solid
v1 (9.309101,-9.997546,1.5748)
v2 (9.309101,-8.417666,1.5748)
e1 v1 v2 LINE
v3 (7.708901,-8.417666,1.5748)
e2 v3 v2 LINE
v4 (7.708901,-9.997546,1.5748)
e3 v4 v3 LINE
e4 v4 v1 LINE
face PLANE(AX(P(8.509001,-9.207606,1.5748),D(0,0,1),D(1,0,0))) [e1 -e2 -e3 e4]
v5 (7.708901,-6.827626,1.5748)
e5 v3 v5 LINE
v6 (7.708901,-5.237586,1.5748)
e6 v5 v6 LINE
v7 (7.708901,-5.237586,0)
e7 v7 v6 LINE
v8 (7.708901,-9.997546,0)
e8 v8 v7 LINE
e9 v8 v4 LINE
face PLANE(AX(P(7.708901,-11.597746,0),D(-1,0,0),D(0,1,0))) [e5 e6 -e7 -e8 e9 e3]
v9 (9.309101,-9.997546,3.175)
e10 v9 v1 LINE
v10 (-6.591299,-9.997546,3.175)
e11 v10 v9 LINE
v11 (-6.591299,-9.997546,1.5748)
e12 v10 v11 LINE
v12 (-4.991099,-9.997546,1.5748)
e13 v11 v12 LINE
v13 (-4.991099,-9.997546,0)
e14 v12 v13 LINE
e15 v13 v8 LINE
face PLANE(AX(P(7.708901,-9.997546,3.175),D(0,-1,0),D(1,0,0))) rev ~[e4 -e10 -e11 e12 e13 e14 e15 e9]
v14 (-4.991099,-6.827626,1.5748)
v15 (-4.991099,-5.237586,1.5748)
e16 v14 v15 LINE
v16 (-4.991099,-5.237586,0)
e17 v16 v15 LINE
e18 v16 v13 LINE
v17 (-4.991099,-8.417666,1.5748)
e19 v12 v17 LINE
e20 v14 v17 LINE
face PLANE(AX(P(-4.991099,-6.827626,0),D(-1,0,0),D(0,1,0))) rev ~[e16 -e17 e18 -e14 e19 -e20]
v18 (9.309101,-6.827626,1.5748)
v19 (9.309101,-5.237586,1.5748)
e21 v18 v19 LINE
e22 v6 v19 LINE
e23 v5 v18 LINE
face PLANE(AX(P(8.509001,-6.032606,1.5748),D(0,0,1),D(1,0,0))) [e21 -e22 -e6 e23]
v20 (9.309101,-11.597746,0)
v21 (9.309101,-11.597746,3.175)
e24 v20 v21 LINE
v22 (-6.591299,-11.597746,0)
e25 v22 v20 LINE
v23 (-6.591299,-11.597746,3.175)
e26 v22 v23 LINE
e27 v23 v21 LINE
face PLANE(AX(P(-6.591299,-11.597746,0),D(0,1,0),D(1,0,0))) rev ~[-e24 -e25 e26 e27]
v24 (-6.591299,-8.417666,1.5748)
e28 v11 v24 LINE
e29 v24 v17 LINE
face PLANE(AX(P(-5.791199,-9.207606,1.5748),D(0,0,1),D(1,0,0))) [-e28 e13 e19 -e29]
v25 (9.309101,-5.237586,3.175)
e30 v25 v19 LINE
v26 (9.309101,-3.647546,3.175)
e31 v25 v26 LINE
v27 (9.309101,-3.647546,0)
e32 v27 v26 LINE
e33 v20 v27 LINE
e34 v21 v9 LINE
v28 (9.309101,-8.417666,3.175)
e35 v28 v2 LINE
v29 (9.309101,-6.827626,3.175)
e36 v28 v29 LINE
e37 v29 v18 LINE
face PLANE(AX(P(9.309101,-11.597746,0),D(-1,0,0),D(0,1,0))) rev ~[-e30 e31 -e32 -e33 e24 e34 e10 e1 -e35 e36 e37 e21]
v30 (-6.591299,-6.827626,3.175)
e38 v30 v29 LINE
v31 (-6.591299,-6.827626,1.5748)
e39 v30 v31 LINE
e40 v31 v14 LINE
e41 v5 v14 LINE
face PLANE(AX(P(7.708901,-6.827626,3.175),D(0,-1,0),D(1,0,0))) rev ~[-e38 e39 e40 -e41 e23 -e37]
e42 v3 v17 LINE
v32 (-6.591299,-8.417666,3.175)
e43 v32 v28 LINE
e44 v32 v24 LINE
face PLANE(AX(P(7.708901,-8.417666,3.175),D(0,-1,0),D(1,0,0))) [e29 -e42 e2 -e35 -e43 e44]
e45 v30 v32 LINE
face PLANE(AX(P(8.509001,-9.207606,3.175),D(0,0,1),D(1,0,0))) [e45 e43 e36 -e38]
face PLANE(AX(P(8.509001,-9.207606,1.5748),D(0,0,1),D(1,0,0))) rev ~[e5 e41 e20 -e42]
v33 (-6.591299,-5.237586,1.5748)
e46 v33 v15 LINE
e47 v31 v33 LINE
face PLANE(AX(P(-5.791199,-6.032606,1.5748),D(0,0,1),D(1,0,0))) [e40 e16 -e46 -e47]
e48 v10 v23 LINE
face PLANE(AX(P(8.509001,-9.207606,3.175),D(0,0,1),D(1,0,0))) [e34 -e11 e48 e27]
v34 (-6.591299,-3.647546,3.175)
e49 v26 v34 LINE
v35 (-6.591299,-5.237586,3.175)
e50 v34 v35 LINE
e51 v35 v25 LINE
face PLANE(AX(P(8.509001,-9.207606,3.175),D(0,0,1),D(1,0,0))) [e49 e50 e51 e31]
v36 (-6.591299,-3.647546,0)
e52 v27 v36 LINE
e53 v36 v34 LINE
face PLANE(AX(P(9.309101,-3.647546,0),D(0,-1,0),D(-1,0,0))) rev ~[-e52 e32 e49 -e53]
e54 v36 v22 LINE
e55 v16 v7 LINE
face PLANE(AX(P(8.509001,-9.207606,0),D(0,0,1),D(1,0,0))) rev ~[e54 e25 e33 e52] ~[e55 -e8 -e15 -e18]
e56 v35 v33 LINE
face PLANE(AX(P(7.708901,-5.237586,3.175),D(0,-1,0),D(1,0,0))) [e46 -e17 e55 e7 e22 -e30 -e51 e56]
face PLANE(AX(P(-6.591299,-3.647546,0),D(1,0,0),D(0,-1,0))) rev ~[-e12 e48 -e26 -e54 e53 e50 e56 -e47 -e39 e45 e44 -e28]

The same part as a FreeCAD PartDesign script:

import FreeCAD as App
import Part
import Sketcher
from FreeCAD import Vector
Q = App.Units.Quantity


def faces_at(feature, points):
    """Names of the faces that lie closest to the given points."""
    faces = feature.Shape.Faces
    near = lambda p: min(range(len(faces)), key=lambda i: faces[i].distToShape(Part.Vertex(*p))[0])
    return sorted({f"Face{near(p) + 1}" for p in points})

doc = App.newDocument("Part")
params = doc.addObject("Spreadsheet::Sheet", "Params")
for row, (alias, value) in enumerate([
    ("sketch1_width", "0.626 in"),
    ("sketch1_height", "0.313 in"),
    ("pad1_length", "0.125 in"),
    ("thickness_wall", "0.063 in"),
    ("sketch2_width", "0.5 in"),
    ("pocket1_length", "1 in"),
    ("sketch3_width", "0.063 in"),
    ("pocket2_length", "0.063 in"),
], start=1):
    params.set(f"A{row}", alias)
    params.set(f"B{row}", "=" + value)
    params.setAlias(f"B{row}", alias)

body = doc.addObject("PartDesign::Body", "Body")

sketch1 = body.newObject("Sketcher::SketchObject", "Sketch")
sketch1.AttachmentSupport = (doc.getObject("XY_Plane"), [""])
sketch1.MapMode = "FlatFace"
sketch1.addGeometry(Part.LineSegment(Vector(9, -12, 0), Vector(9, -4, 0)), False)
sketch1.addGeometry(Part.LineSegment(Vector(9, -4, 0), Vector(-7, -4, 0)), False)
sketch1.addGeometry(Part.LineSegment(Vector(-7, -4, 0), Vector(-7, -12, 0)), False)
sketch1.addGeometry(Part.LineSegment(Vector(-7, -12, 0), Vector(9, -12, 0)), False)
sketch1.addConstraint(Sketcher.Constraint("Coincident", 0, 2, 1, 1))
sketch1.addConstraint(Sketcher.Constraint("Coincident", 1, 2, 2, 1))
sketch1.addConstraint(Sketcher.Constraint("Coincident", 2, 2, 3, 1))
sketch1.addConstraint(Sketcher.Constraint("Coincident", 3, 2, 0, 1))
sketch1.addConstraint(Sketcher.Constraint("Vertical", 0))
sketch1.addConstraint(Sketcher.Constraint("Horizontal", 1))
sketch1.addConstraint(Sketcher.Constraint("Vertical", 2))
sketch1.addConstraint(Sketcher.Constraint("Horizontal", 3))
sketch1.addConstraint(Sketcher.Constraint("DistanceX", 1, 2, 1, 1, Q("0.626 in")))
sketch1.addConstraint(Sketcher.Constraint("DistanceY", 0, 1, 0, 2, Q("0.313 in")))
sketch1.addConstraint(Sketcher.Constraint("DistanceX", -1, 1, 0, 2, Q("0.3665 in")))
sketch1.addConstraint(Sketcher.Constraint("DistanceY", 0, 2, -1, 1, Q("3.647546 mm")))
sketch1.setExpression("Constraints[8]", "Params.sketch1_width")
sketch1.setExpression("Constraints[9]", "Params.sketch1_height")
pad1 = body.newObject("PartDesign::Pad", "Pad")
pad1.Profile = sketch1
pad1.setExpression("Length", "Params.pad1_length")
doc.recompute()

thickness = body.newObject("PartDesign::Thickness", "Thickness")
thickness.Base = (pad1, faces_at(pad1, [(1.359, -7.623, 0)]))
thickness.setExpression("Value", "Params.thickness_wall")
thickness.Reversed = True
thickness.Join = "Arc"

sketch2 = body.newObject("Sketcher::SketchObject", "Sketch001")
sketch2.AttachmentSupport = (doc.getObject("XY_Plane"), [""])
sketch2.MapMode = "FlatFace"
sketch2.addGeometry(Part.LineSegment(Vector(-5, -5.2, 0), Vector(-5, -6.8, 0)), False)
sketch2.addGeometry(Part.LineSegment(Vector(-5, -6.8, 0), Vector(7.7, -6.8, 0)), False)
sketch2.addGeometry(Part.LineSegment(Vector(7.7, -6.8, 0), Vector(7.7, -5.2, 0)), False)
sketch2.addGeometry(Part.LineSegment(Vector(7.7, -5.2, 0), Vector(-5, -5.2, 0)), False)
sketch2.addGeometry(Part.LineSegment(Vector(-5, -8.4, 0), Vector(-5, -10, 0)), False)
sketch2.addGeometry(Part.LineSegment(Vector(-5, -10, 0), Vector(7.7, -10, 0)), False)
sketch2.addGeometry(Part.LineSegment(Vector(7.7, -10, 0), Vector(7.7, -8.4, 0)), False)
sketch2.addGeometry(Part.LineSegment(Vector(7.7, -8.4, 0), Vector(-5, -8.4, 0)), False)
sketch2.addConstraint(Sketcher.Constraint("Coincident", 0, 2, 1, 1))
sketch2.addConstraint(Sketcher.Constraint("Coincident", 1, 2, 2, 1))
sketch2.addConstraint(Sketcher.Constraint("Coincident", 2, 2, 3, 1))
sketch2.addConstraint(Sketcher.Constraint("Coincident", 3, 2, 0, 1))
sketch2.addConstraint(Sketcher.Constraint("Coincident", 4, 2, 5, 1))
sketch2.addConstraint(Sketcher.Constraint("Coincident", 5, 2, 6, 1))
sketch2.addConstraint(Sketcher.Constraint("Coincident", 6, 2, 7, 1))
sketch2.addConstraint(Sketcher.Constraint("Coincident", 7, 2, 4, 1))
sketch2.addConstraint(Sketcher.Constraint("Vertical", 0))
sketch2.addConstraint(Sketcher.Constraint("Horizontal", 1))
sketch2.addConstraint(Sketcher.Constraint("Vertical", 2))
sketch2.addConstraint(Sketcher.Constraint("Horizontal", 3))
sketch2.addConstraint(Sketcher.Constraint("Vertical", 4))
sketch2.addConstraint(Sketcher.Constraint("Horizontal", 5))
sketch2.addConstraint(Sketcher.Constraint("Vertical", 6))
sketch2.addConstraint(Sketcher.Constraint("Horizontal", 7))
sketch2.addConstraint(Sketcher.Constraint("Vertical", 3, 2, 4, 2))
sketch2.addConstraint(Sketcher.Constraint("Vertical", 2, 2, 5, 2))
sketch2.addConstraint(Sketcher.Constraint("DistanceX", 1, 1, 1, 2, Q("0.5 in")))
sketch2.addConstraint(Sketcher.Constraint("DistanceY", 0, 2, 0, 1, Q("0.0626 in")))
sketch2.addConstraint(Sketcher.Constraint("DistanceY", 4, 2, 4, 1, Q("0.0622 in")))
sketch2.addConstraint(Sketcher.Constraint("DistanceX", 0, 2, -1, 1, Q("0.1965 in")))
sketch2.addConstraint(Sketcher.Constraint("DistanceY", 4, 2, 0, 2, Q("0.1248 in")))
sketch2.addConstraint(Sketcher.Constraint("DistanceY", 0, 2, -1, 1, Q("6.827626 mm")))
sketch2.setExpression("Constraints[18]", "Params.sketch2_width")
pocket1 = body.newObject("PartDesign::Pocket", "Pocket")
pocket1.Profile = sketch2
pocket1.setExpression("Length", "Params.pocket1_length")
pocket1.Reversed = True

sketch3 = body.newObject("Sketcher::SketchObject", "Sketch002")
sketch3.AttachmentSupport = (doc.getObject("XY_Plane"), [""])
sketch3.MapMode = "FlatFace"
sketch3.AttachmentOffset = App.Placement(Vector(0, 0, 0.125 * 25.4), App.Rotation())
sketch3.addGeometry(Part.LineSegment(Vector(-6.6, -5.2, 0), Vector(-6.6, -6.8, 0)), False)
sketch3.addGeometry(Part.LineSegment(Vector(-6.6, -6.8, 0), Vector(-5, -6.8, 0)), False)
sketch3.addGeometry(Part.LineSegment(Vector(-5, -6.8, 0), Vector(-5, -5.2, 0)), False)
sketch3.addGeometry(Part.LineSegment(Vector(-5, -5.2, 0), Vector(-6.6, -5.2, 0)), False)
sketch3.addGeometry(Part.LineSegment(Vector(-6.6, -8.4, 0), Vector(-6.6, -10, 0)), False)
sketch3.addGeometry(Part.LineSegment(Vector(-6.6, -10, 0), Vector(-5, -10, 0)), False)
sketch3.addGeometry(Part.LineSegment(Vector(-5, -10, 0), Vector(-5, -8.4, 0)), False)
sketch3.addGeometry(Part.LineSegment(Vector(-5, -8.4, 0), Vector(-6.6, -8.4, 0)), False)
sketch3.addGeometry(Part.LineSegment(Vector(7.7, -5.2, 0), Vector(7.7, -6.8, 0)), False)
sketch3.addGeometry(Part.LineSegment(Vector(7.7, -6.8, 0), Vector(9.3, -6.8, 0)), False)
sketch3.addGeometry(Part.LineSegment(Vector(9.3, -6.8, 0), Vector(9.3, -5.2, 0)), False)
sketch3.addGeometry(Part.LineSegment(Vector(9.3, -5.2, 0), Vector(7.7, -5.2, 0)), False)
sketch3.addGeometry(Part.LineSegment(Vector(7.7, -8.4, 0), Vector(7.7, -10, 0)), False)
sketch3.addGeometry(Part.LineSegment(Vector(7.7, -10, 0), Vector(9.3, -10, 0)), False)
sketch3.addGeometry(Part.LineSegment(Vector(9.3, -10, 0), Vector(9.3, -8.4, 0)), False)
sketch3.addGeometry(Part.LineSegment(Vector(9.3, -8.4, 0), Vector(7.7, -8.4, 0)), False)
sketch3.addConstraint(Sketcher.Constraint("Coincident", 0, 2, 1, 1))
sketch3.addConstraint(Sketcher.Constraint("Coincident", 1, 2, 2, 1))
sketch3.addConstraint(Sketcher.Constraint("Coincident", 2, 2, 3, 1))
sketch3.addConstraint(Sketcher.Constraint("Coincident", 3, 2, 0, 1))
sketch3.addConstraint(Sketcher.Constraint("Coincident", 4, 2, 5, 1))
sketch3.addConstraint(Sketcher.Constraint("Coincident", 5, 2, 6, 1))
sketch3.addConstraint(Sketcher.Constraint("Coincident", 6, 2, 7, 1))
sketch3.addConstraint(Sketcher.Constraint("Coincident", 7, 2, 4, 1))
sketch3.addConstraint(Sketcher.Constraint("Coincident", 8, 2, 9, 1))
sketch3.addConstraint(Sketcher.Constraint("Coincident", 9, 2, 10, 1))
sketch3.addConstraint(Sketcher.Constraint("Coincident", 10, 2, 11, 1))
sketch3.addConstraint(Sketcher.Constraint("Coincident", 11, 2, 8, 1))
sketch3.addConstraint(Sketcher.Constraint("Coincident", 12, 2, 13, 1))
sketch3.addConstraint(Sketcher.Constraint("Coincident", 13, 2, 14, 1))
sketch3.addConstraint(Sketcher.Constraint("Coincident", 14, 2, 15, 1))
sketch3.addConstraint(Sketcher.Constraint("Coincident", 15, 2, 12, 1))
sketch3.addConstraint(Sketcher.Constraint("Vertical", 0))
sketch3.addConstraint(Sketcher.Constraint("Horizontal", 1))
sketch3.addConstraint(Sketcher.Constraint("Vertical", 2))
sketch3.addConstraint(Sketcher.Constraint("Horizontal", 3))
sketch3.addConstraint(Sketcher.Constraint("Vertical", 4))
sketch3.addConstraint(Sketcher.Constraint("Horizontal", 5))
sketch3.addConstraint(Sketcher.Constraint("Vertical", 6))
sketch3.addConstraint(Sketcher.Constraint("Horizontal", 7))
sketch3.addConstraint(Sketcher.Constraint("Vertical", 8))
sketch3.addConstraint(Sketcher.Constraint("Horizontal", 9))
sketch3.addConstraint(Sketcher.Constraint("Vertical", 10))
sketch3.addConstraint(Sketcher.Constraint("Horizontal", 11))
sketch3.addConstraint(Sketcher.Constraint("Vertical", 12))
sketch3.addConstraint(Sketcher.Constraint("Horizontal", 13))
sketch3.addConstraint(Sketcher.Constraint("Vertical", 14))
sketch3.addConstraint(Sketcher.Constraint("Horizontal", 15))
sketch3.addConstraint(Sketcher.Constraint("Horizontal", 1, 2, 8, 2))
sketch3.addConstraint(Sketcher.Constraint("Horizontal", 3, 2, 10, 2))
sketch3.addConstraint(Sketcher.Constraint("Horizontal", 5, 2, 12, 2))
sketch3.addConstraint(Sketcher.Constraint("Horizontal", 7, 2, 14, 2))
sketch3.addConstraint(Sketcher.Constraint("Vertical", 3, 2, 4, 2))
sketch3.addConstraint(Sketcher.Constraint("Vertical", 2, 2, 5, 2))
sketch3.addConstraint(Sketcher.Constraint("Vertical", 11, 2, 12, 2))
sketch3.addConstraint(Sketcher.Constraint("Vertical", 10, 2, 13, 2))
sketch3.addConstraint(Sketcher.Constraint("Equal", 7, 9))
sketch3.addConstraint(Sketcher.Constraint("DistanceX", 1, 2, 8, 2, Q("0.5 in")))
sketch3.addConstraint(Sketcher.Constraint("DistanceX", 1, 1, 1, 2, Q("0.063 in")))
sketch3.addConstraint(Sketcher.Constraint("DistanceY", 0, 2, 0, 1, Q("0.0626 in")))
sketch3.addConstraint(Sketcher.Constraint("DistanceY", 4, 2, 4, 1, Q("0.0622 in")))
sketch3.addConstraint(Sketcher.Constraint("DistanceX", 0, 2, -1, 1, Q("0.2595 in")))
sketch3.addConstraint(Sketcher.Constraint("DistanceY", 4, 2, 0, 2, Q("0.1248 in")))
sketch3.addConstraint(Sketcher.Constraint("DistanceY", 0, 2, -1, 1, Q("6.827626 mm")))
sketch3.setExpression("Constraints[42]", "Params.sketch3_width")
pocket2 = body.newObject("PartDesign::Pocket", "Pocket001")
pocket2.Profile = sketch3
pocket2.setExpression("Length", "Params.pocket2_length")

doc.recompute()
